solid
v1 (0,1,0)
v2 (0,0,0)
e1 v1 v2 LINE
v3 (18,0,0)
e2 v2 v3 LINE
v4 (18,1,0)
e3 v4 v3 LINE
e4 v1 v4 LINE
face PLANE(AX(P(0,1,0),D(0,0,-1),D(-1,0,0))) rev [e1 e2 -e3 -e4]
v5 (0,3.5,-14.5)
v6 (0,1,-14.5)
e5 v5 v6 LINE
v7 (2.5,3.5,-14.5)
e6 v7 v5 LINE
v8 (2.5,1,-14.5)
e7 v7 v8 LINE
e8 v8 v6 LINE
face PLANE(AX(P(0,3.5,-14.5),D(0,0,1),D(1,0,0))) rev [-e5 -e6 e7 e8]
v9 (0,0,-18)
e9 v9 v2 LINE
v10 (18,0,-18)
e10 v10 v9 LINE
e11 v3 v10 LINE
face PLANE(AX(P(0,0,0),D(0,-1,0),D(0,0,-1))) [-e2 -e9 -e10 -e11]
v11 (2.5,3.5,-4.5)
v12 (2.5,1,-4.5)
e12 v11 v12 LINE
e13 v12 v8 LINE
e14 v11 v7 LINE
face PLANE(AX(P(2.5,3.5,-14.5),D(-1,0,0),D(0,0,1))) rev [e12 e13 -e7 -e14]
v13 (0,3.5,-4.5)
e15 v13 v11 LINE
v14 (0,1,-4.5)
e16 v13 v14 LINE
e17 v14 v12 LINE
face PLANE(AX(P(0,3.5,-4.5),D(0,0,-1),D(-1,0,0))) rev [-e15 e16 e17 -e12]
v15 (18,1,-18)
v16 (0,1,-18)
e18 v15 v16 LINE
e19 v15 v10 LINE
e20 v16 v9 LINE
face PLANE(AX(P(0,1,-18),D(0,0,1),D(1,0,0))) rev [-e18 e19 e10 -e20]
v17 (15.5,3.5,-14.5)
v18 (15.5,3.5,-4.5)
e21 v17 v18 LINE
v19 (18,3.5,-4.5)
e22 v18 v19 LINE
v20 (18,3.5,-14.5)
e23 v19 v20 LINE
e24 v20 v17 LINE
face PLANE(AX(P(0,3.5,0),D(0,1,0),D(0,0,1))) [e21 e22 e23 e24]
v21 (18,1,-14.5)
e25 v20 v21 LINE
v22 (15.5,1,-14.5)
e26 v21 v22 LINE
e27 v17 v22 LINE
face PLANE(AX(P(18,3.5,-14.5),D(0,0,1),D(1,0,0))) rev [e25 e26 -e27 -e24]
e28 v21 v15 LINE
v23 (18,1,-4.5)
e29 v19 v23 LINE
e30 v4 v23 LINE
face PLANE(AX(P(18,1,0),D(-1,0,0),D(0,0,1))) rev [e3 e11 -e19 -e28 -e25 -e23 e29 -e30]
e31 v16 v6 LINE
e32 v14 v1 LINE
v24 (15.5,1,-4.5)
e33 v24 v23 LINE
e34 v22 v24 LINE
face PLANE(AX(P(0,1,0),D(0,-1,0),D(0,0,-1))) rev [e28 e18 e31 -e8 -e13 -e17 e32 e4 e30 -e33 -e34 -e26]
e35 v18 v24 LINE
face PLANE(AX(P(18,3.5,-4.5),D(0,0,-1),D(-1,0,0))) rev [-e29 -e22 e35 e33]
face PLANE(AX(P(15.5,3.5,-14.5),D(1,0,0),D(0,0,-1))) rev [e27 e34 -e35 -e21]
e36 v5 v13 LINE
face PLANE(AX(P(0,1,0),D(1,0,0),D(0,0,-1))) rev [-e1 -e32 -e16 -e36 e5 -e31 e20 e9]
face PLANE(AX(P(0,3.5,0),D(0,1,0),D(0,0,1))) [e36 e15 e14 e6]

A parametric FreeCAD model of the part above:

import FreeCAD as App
import Part
import Sketcher
from FreeCAD import Vector
Q = App.Units.Quantity


def add_polygon(sketch, points):
    """Adds a closed chain of lines whose ends are joined by coincident constraints."""
    first, n = sketch.GeometryCount, len(points)
    for a, b in zip(points, points[1:] + points[:1]):
        sketch.addGeometry(Part.LineSegment(App.Vector(*a, 0), App.Vector(*b, 0)), False)
    for i in range(n):
        sketch.addConstraint(Sketcher.Constraint("Coincident", first + i, 2, first + (i + 1) % n, 1))

doc = App.newDocument("Part")
body = doc.addObject("PartDesign::Body", "Body")

sketch1 = body.newObject("Sketcher::SketchObject", "Sketch")
sketch1.AttachmentSupport = (doc.getObject("XZ_Plane"), [""])
sketch1.MapMode = "FlatFace"
add_polygon(sketch1, [(0, -18), (0, 0), (18, 0), (18, -18)])
sketch1.addConstraint([
    Sketcher.Constraint("Vertical", 0),
    Sketcher.Constraint("Horizontal", 1),
    Sketcher.Constraint("Vertical", 2),
    Sketcher.Constraint("Horizontal", 3),
    Sketcher.Constraint("Coincident", 0, 2, -1, 1),
    Sketcher.Constraint("Equal", 3, 0),
    Sketcher.Constraint("DistanceX", 1, 1, 1, 2, Q("18 mm")),
])
pad1 = body.newObject("PartDesign::Pad", "Pad")
pad1.Profile = sketch1
pad1.Length = 1
pad1.Reversed = True

sketch2 = body.newObject("Sketcher::SketchObject", "Sketch001")
sketch2.AttachmentSupport = (doc.getObject("XZ_Plane"), [""])
sketch2.MapMode = "FlatFace"
sketch2.AttachmentOffset = App.Placement(Vector(0, 0, -1), App.Rotation())
add_polygon(sketch2, [(0, -14.5), (0, -4.5), (2.5, -4.5), (2.5, -14.5)])
add_polygon(sketch2, [(15.5, -14.5), (15.5, -4.5), (18, -4.5), (18, -14.5)])
sketch2.addConstraint([
    Sketcher.Constraint("Vertical", 0),
    Sketcher.Constraint("Horizontal", 1),
    Sketcher.Constraint("Vertical", 2),
    Sketcher.Constraint("Horizontal", 3),
    Sketcher.Constraint("Vertical", 4),
    Sketcher.Constraint("Horizontal", 5),
    Sketcher.Constraint("Vertical", 6),
    Sketcher.Constraint("Horizontal", 7),
    Sketcher.Constraint("PointOnObject", 0, 2, -2),
    Sketcher.Constraint("Horizontal", 1, 2, 4, 2),
    Sketcher.Constraint("Horizontal", 3, 2, 6, 2),
    Sketcher.Constraint("Equal", 3, 5),
    Sketcher.Constraint("DistanceY", 0, 1, 0, 2, Q("10 mm")),
    Sketcher.Constraint("DistanceX", 1, 1, 1, 2, Q("2.5 mm")),
    Sketcher.Constraint("DistanceX", -1, 1, 5, 2, Q("18 mm")),
    Sketcher.Constraint("DistanceY", 0, 2, -1, 1, Q("4.5 mm")),
])
pad2 = body.newObject("PartDesign::Pad", "Pad001")
pad2.Profile = sketch2
pad2.Length = 2.5
pad2.Reversed = True

doc.recompute()
